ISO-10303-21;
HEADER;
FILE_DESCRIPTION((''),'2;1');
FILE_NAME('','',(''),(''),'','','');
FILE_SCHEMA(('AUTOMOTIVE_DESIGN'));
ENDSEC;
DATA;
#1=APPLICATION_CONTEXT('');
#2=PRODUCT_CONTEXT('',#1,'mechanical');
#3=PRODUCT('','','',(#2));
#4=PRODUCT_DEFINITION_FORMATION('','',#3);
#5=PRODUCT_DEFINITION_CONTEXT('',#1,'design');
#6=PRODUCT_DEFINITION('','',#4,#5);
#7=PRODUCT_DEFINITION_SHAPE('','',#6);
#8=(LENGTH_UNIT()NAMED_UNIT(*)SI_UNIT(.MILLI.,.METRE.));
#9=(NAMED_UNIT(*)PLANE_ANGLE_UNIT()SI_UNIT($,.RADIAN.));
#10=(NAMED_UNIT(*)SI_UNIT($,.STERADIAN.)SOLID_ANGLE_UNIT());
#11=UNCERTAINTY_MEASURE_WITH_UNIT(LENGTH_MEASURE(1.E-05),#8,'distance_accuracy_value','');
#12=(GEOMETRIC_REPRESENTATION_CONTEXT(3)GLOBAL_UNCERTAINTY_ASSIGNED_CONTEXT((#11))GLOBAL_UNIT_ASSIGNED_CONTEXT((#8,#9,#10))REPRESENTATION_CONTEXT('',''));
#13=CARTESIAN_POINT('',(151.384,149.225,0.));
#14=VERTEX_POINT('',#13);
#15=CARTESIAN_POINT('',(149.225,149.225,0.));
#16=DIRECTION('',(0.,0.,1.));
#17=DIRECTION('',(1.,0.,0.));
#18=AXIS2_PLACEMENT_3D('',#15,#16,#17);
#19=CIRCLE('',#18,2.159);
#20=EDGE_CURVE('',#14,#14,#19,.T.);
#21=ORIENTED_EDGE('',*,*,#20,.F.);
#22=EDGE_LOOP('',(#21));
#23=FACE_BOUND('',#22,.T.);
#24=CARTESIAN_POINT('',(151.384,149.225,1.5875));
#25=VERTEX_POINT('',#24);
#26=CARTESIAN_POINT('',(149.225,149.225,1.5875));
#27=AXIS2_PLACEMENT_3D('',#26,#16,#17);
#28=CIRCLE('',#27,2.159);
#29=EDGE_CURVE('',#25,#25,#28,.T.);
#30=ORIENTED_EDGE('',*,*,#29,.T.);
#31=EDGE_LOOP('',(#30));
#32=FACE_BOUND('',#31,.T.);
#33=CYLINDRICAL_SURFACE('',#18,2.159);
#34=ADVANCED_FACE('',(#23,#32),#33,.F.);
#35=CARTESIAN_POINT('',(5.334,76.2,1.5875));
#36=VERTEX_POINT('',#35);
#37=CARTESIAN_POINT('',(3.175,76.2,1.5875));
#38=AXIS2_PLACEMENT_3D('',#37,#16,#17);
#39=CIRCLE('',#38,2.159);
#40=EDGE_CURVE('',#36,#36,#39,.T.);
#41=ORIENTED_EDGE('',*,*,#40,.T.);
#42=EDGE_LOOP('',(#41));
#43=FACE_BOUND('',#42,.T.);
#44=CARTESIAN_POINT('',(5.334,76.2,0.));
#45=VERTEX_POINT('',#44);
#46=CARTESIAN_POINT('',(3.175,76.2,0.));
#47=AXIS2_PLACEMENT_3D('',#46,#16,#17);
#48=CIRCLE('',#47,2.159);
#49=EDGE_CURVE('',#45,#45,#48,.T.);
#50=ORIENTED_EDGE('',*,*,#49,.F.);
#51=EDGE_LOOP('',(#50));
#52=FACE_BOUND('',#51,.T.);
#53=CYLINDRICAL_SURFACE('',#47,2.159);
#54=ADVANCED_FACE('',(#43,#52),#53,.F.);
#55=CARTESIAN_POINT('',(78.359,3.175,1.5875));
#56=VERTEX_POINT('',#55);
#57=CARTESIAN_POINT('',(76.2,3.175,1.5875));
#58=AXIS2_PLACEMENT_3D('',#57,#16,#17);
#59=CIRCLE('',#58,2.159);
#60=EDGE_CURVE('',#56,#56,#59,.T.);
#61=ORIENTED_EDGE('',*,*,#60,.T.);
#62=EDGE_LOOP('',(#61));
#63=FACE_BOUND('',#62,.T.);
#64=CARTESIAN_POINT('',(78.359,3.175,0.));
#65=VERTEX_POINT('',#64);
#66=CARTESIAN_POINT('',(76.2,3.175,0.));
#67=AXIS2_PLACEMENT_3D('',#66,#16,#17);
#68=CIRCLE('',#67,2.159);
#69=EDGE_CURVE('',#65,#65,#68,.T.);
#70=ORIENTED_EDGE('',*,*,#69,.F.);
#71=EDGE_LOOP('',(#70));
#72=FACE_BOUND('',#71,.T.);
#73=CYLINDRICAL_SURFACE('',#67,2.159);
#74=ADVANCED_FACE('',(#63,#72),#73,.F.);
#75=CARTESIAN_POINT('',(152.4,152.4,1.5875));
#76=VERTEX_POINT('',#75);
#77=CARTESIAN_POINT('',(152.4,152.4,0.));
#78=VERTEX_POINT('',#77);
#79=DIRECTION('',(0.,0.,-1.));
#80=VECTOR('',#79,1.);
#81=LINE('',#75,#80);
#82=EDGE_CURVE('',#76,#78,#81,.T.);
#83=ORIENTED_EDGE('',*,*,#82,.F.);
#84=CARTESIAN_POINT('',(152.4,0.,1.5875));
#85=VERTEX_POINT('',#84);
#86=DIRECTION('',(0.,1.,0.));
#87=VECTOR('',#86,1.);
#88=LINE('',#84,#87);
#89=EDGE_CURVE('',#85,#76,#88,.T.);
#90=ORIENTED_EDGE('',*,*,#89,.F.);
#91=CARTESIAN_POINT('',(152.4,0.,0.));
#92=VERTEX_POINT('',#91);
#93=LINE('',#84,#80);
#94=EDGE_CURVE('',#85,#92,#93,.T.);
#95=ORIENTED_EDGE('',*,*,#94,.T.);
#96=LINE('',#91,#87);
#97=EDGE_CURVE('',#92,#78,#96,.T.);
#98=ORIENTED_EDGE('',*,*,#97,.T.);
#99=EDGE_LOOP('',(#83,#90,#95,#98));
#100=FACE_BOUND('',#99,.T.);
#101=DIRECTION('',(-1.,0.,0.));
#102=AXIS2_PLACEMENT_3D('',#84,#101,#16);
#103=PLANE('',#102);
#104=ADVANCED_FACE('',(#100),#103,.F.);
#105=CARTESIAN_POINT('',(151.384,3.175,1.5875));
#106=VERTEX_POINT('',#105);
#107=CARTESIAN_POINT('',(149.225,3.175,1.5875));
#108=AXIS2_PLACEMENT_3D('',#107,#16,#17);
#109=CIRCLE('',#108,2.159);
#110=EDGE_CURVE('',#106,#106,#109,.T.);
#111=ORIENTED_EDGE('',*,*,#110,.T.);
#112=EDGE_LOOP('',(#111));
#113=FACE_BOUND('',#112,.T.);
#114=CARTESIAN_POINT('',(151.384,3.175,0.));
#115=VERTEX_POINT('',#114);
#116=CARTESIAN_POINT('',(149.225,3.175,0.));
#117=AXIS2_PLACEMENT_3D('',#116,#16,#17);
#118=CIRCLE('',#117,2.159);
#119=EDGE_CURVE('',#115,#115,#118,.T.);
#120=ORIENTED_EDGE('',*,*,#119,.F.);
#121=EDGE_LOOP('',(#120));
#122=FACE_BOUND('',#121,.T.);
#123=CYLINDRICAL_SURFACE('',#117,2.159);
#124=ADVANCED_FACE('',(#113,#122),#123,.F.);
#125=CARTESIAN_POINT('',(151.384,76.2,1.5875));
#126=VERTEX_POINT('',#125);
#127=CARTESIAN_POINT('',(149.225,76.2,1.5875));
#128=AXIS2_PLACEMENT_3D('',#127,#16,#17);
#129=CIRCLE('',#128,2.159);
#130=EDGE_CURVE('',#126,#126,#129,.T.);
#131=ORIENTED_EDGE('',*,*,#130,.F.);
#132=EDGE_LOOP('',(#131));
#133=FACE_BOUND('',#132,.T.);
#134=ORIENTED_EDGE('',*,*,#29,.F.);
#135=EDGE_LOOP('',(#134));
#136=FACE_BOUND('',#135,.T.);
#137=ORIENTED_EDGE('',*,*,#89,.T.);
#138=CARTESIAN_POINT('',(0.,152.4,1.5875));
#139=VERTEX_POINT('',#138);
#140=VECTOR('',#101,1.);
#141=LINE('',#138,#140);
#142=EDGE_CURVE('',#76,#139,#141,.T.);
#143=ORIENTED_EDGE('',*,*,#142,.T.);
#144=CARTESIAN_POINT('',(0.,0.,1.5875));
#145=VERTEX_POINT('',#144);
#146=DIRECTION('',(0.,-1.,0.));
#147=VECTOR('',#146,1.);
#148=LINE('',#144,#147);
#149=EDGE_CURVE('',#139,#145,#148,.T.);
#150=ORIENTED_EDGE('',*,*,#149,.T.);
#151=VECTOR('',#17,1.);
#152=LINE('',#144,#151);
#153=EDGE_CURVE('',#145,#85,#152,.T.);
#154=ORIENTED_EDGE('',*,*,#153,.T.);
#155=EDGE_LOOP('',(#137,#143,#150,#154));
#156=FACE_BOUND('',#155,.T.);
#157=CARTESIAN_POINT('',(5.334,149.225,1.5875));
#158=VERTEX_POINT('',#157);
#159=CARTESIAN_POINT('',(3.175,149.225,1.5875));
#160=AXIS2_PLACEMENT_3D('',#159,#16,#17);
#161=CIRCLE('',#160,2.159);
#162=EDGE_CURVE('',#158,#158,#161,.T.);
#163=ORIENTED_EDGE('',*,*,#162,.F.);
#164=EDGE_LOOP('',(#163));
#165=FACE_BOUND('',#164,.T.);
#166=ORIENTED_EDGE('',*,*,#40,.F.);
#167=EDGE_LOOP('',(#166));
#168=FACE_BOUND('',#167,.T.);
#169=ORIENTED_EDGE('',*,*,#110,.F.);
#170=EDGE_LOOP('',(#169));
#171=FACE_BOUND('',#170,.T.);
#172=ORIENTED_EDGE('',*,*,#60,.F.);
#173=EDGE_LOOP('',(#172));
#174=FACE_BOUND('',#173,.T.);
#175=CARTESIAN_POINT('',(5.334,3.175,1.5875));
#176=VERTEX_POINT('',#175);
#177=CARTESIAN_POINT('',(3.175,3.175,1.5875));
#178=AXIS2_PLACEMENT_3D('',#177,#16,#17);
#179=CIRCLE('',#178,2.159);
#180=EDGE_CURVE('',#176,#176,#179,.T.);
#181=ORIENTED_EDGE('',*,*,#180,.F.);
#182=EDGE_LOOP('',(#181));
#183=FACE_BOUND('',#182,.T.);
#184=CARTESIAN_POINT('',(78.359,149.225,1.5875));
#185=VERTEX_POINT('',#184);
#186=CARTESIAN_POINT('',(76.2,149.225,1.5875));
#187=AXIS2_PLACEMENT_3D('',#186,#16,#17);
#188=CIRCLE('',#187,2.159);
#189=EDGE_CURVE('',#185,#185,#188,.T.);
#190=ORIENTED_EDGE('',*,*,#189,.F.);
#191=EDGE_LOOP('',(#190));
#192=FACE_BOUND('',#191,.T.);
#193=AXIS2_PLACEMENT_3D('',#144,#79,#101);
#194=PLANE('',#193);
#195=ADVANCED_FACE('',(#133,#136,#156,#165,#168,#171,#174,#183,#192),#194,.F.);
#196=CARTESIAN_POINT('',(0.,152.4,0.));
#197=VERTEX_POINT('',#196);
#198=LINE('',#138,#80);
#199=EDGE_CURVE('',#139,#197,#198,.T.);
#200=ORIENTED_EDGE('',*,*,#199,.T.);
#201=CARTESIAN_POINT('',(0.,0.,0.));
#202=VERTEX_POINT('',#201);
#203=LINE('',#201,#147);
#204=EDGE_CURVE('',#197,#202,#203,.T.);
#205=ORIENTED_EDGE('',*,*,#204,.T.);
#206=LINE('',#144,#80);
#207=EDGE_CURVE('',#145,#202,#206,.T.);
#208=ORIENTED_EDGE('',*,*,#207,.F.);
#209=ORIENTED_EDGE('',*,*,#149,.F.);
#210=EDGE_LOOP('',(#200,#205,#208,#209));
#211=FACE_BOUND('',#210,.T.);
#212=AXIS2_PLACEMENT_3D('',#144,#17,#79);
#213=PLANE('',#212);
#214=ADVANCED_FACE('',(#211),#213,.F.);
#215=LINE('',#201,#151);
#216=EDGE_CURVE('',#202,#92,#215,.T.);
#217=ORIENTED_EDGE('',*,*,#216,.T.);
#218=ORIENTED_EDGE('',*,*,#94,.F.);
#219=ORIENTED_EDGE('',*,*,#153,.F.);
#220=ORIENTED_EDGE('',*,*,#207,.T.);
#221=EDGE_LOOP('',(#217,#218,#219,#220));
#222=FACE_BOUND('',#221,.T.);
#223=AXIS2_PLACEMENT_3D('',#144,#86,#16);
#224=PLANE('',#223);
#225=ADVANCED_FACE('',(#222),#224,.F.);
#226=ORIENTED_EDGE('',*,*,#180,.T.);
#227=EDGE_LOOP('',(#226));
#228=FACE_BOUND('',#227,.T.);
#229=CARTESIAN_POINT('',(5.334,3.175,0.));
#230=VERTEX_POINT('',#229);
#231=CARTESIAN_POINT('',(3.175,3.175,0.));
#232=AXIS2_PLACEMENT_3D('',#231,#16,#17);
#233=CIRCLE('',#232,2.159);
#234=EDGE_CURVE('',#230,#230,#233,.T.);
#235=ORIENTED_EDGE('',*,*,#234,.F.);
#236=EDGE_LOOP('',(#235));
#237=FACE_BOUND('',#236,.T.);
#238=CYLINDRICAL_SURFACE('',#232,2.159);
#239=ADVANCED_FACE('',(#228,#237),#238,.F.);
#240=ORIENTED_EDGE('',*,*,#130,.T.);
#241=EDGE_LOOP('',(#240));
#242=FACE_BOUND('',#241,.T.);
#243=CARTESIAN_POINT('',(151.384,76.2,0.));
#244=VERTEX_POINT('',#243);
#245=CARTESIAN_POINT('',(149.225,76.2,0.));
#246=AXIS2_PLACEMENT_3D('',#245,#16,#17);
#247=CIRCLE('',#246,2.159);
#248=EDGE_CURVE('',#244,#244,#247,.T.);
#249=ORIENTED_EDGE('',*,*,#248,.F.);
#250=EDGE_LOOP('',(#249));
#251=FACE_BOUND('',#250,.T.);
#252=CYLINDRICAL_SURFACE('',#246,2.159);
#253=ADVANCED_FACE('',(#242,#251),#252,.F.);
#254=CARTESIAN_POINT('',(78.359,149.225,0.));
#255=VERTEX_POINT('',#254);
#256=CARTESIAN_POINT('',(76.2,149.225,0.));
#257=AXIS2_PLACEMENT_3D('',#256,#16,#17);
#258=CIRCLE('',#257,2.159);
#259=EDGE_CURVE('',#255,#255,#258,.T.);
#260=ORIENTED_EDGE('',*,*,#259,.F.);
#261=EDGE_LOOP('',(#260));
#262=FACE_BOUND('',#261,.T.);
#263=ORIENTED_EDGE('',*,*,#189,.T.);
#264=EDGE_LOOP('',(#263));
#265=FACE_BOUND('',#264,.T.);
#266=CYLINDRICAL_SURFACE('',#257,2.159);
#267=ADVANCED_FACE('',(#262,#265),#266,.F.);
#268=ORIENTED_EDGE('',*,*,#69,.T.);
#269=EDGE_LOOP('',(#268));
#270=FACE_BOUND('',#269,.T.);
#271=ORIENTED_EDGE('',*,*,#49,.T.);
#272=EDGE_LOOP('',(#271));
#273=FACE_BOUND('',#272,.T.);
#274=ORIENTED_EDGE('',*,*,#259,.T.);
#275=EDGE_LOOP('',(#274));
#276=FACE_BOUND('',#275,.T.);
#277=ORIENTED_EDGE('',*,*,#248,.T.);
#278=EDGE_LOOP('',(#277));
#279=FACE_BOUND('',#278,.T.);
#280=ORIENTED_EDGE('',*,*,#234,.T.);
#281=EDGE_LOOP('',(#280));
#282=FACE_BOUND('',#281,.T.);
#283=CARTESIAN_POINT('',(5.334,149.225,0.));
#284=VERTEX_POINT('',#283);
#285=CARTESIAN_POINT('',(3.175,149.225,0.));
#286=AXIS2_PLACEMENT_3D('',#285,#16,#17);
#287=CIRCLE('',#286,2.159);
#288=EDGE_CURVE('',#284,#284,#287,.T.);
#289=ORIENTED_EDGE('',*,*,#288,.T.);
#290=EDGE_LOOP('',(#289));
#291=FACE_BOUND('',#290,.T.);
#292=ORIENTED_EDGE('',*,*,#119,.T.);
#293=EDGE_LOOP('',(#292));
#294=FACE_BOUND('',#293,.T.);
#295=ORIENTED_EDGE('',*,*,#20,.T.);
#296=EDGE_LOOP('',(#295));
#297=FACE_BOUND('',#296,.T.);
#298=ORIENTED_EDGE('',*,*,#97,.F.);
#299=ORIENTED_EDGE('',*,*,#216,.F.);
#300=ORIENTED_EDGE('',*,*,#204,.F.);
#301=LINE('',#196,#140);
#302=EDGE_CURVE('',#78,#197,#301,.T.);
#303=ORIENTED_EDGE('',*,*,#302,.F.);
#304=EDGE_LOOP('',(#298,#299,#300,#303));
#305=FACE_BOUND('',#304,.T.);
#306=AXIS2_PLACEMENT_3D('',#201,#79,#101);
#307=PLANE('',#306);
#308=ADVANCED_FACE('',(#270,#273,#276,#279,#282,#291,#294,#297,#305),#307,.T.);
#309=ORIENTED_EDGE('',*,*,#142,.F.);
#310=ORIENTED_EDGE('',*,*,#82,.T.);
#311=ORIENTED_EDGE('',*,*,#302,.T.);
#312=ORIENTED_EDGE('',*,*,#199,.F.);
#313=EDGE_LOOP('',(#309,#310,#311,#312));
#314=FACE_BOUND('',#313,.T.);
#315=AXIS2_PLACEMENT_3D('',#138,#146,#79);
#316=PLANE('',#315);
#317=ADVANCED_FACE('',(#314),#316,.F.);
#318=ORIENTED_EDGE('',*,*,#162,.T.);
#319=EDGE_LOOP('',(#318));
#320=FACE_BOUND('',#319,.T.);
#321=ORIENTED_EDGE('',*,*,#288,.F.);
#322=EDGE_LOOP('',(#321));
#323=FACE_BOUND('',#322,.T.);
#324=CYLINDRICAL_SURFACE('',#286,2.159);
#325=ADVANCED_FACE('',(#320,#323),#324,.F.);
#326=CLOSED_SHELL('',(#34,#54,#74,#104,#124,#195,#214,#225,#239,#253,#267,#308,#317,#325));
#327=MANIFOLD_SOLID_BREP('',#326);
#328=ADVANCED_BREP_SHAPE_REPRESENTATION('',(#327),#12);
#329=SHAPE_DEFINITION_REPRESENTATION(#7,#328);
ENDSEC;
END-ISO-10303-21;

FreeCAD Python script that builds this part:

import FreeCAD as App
import Part
import Sketcher
Q = App.Units.Quantity

doc = App.newDocument("Part")
body = doc.addObject("PartDesign::Body", "Body")

# Sketch on XY plane
sketch1 = doc.addObject("Sketcher::SketchObject", "Sketch")
body.addObject(sketch1)
sketch1.AttachmentSupport = (doc.XY_Plane, [""])
sketch1.MapMode = "FlatFace"
sketch1.addGeometry(Part.LineSegment(App.Vector(0, 152.4, 0), App.Vector(0, 0, 0)), False)
sketch1.addGeometry(Part.LineSegment(App.Vector(0, 0, 0), App.Vector(152.4, 0, 0)), False)
sketch1.addGeometry(Part.LineSegment(App.Vector(152.4, 0, 0), App.Vector(152.4, 152.4, 0)), False)
sketch1.addGeometry(Part.LineSegment(App.Vector(152.4, 152.4, 0), App.Vector(0, 152.4, 0)), False)
sketch1.addConstraint(Sketcher.Constraint("Coincident", 0, 2, 1, 1))
sketch1.addConstraint(Sketcher.Constraint("Coincident", 1, 2, 2, 1))
sketch1.addConstraint(Sketcher.Constraint("Coincident", 2, 2, 3, 1))
sketch1.addConstraint(Sketcher.Constraint("Coincident", 3, 2, 0, 1))
sketch1.addConstraint(Sketcher.Constraint("Vertical", 0))
sketch1.addConstraint(Sketcher.Constraint("Horizontal", 1))
sketch1.addConstraint(Sketcher.Constraint("Vertical", 2))
sketch1.addConstraint(Sketcher.Constraint("Horizontal", 3))
sketch1.addConstraint(Sketcher.Constraint("Coincident", 0, 2, -1, 1))
sketch1.addConstraint(Sketcher.Constraint("Equal", 3, 0))
sketch1.addConstraint(Sketcher.Constraint("DistanceX", 1, 1, 1, 2, Q("6 in")))
pad1 = doc.addObject("PartDesign::Pad", "Pad")
body.addObject(pad1)
pad1.Profile = sketch1
pad1.Length = Q("0.0625 in")

# Sketch on XY plane
sketch2 = doc.addObject("Sketcher::SketchObject", "Sketch001")
body.addObject(sketch2)
sketch2.AttachmentSupport = (doc.XY_Plane, [""])
sketch2.MapMode = "FlatFace"
sketch2.AttachmentOffset = App.Placement(App.Vector(0, 0, 0.0625 * 25.4), App.Rotation())
sketch2.addGeometry(Part.Circle(App.Vector(3.175, 149.225, 0), App.Vector(0, 0, 1), 2.159), False)
sketch2.addGeometry(Part.Circle(App.Vector(76.2, 149.225, 0), App.Vector(0, 0, 1), 2.159), False)
sketch2.addGeometry(Part.Circle(App.Vector(149.225, 149.225, 0), App.Vector(0, 0, 1), 2.159), False)
sketch2.addGeometry(Part.Circle(App.Vector(3.175, 3.175, 0), App.Vector(0, 0, 1), 2.159), False)
sketch2.addGeometry(Part.Circle(App.Vector(149.225, 3.175, 0), App.Vector(0, 0, 1), 2.159), False)
sketch2.addGeometry(Part.Circle(App.Vector(149.225, 76.2, 0), App.Vector(0, 0, 1), 2.159), False)
sketch2.addGeometry(Part.Circle(App.Vector(3.175, 76.2, 0), App.Vector(0, 0, 1), 2.159), False)
sketch2.addGeometry(Part.Circle(App.Vector(76.2, 3.175, 0), App.Vector(0, 0, 1), 2.159), False)
sketch2.addConstraint(Sketcher.Constraint("Equal", 0, 1))
sketch2.addConstraint(Sketcher.Constraint("Equal", 1, 2))
sketch2.addConstraint(Sketcher.Constraint("Equal", 2, 3))
sketch2.addConstraint(Sketcher.Constraint("Equal", 3, 4))
sketch2.addConstraint(Sketcher.Constraint("Equal", 4, 5))
sketch2.addConstraint(Sketcher.Constraint("Equal", 5, 6))
sketch2.addConstraint(Sketcher.Constraint("Equal", 6, 7))
sketch2.addConstraint(Sketcher.Constraint("Horizontal", 0, 3, 1, 3))
sketch2.addConstraint(Sketcher.Constraint("Horizontal", 1, 3, 2, 3))
sketch2.addConstraint(Sketcher.Constraint("Horizontal", 3, 3, 4, 3))
sketch2.addConstraint(Sketcher.Constraint("Horizontal", 5, 3, 6, 3))
sketch2.addConstraint(Sketcher.Constraint("Horizontal", 4, 3, 7, 3))
sketch2.addConstraint(Sketcher.Constraint("Vertical", 0, 3, 3, 3))
sketch2.addConstraint(Sketcher.Constraint("Vertical", 2, 3, 4, 3))
sketch2.addConstraint(Sketcher.Constraint("Vertical", 4, 3, 5, 3))
sketch2.addConstraint(Sketcher.Constraint("Vertical", 3, 3, 6, 3))
sketch2.addConstraint(Sketcher.Constraint("Vertical", 1, 3, 7, 3))
sketch2.addConstraint(Sketcher.Constraint("Diameter", 0, Q("0.17 in")))
sketch2.addConstraint(Sketcher.Constraint("DistanceX", -1, 1, 1, 3, Q("3 in")))
sketch2.addConstraint(Sketcher.Constraint("DistanceY", -1, 1, 5, 3, Q("3 in")))
sketch2.addConstraint(Sketcher.Constraint("DistanceX", 0, 3, 2, 3, Q("5.75 in")))
sketch2.addConstraint(Sketcher.Constraint("DistanceY", 3, 3, 0, 3, Q("5.75 in")))
sketch2.addConstraint(Sketcher.Constraint("DistanceX", -1, 1, 0, 3, Q("0.125 in")))
sketch2.addConstraint(Sketcher.Constraint("DistanceY", -1, 1, 0, 3, Q("5.875 in")))
pocket1 = doc.addObject("PartDesign::Pocket", "Pocket")
body.addObject(pocket1)
pocket1.Profile = sketch2
pocket1.Type = "ThroughAll"

doc.recompute()
